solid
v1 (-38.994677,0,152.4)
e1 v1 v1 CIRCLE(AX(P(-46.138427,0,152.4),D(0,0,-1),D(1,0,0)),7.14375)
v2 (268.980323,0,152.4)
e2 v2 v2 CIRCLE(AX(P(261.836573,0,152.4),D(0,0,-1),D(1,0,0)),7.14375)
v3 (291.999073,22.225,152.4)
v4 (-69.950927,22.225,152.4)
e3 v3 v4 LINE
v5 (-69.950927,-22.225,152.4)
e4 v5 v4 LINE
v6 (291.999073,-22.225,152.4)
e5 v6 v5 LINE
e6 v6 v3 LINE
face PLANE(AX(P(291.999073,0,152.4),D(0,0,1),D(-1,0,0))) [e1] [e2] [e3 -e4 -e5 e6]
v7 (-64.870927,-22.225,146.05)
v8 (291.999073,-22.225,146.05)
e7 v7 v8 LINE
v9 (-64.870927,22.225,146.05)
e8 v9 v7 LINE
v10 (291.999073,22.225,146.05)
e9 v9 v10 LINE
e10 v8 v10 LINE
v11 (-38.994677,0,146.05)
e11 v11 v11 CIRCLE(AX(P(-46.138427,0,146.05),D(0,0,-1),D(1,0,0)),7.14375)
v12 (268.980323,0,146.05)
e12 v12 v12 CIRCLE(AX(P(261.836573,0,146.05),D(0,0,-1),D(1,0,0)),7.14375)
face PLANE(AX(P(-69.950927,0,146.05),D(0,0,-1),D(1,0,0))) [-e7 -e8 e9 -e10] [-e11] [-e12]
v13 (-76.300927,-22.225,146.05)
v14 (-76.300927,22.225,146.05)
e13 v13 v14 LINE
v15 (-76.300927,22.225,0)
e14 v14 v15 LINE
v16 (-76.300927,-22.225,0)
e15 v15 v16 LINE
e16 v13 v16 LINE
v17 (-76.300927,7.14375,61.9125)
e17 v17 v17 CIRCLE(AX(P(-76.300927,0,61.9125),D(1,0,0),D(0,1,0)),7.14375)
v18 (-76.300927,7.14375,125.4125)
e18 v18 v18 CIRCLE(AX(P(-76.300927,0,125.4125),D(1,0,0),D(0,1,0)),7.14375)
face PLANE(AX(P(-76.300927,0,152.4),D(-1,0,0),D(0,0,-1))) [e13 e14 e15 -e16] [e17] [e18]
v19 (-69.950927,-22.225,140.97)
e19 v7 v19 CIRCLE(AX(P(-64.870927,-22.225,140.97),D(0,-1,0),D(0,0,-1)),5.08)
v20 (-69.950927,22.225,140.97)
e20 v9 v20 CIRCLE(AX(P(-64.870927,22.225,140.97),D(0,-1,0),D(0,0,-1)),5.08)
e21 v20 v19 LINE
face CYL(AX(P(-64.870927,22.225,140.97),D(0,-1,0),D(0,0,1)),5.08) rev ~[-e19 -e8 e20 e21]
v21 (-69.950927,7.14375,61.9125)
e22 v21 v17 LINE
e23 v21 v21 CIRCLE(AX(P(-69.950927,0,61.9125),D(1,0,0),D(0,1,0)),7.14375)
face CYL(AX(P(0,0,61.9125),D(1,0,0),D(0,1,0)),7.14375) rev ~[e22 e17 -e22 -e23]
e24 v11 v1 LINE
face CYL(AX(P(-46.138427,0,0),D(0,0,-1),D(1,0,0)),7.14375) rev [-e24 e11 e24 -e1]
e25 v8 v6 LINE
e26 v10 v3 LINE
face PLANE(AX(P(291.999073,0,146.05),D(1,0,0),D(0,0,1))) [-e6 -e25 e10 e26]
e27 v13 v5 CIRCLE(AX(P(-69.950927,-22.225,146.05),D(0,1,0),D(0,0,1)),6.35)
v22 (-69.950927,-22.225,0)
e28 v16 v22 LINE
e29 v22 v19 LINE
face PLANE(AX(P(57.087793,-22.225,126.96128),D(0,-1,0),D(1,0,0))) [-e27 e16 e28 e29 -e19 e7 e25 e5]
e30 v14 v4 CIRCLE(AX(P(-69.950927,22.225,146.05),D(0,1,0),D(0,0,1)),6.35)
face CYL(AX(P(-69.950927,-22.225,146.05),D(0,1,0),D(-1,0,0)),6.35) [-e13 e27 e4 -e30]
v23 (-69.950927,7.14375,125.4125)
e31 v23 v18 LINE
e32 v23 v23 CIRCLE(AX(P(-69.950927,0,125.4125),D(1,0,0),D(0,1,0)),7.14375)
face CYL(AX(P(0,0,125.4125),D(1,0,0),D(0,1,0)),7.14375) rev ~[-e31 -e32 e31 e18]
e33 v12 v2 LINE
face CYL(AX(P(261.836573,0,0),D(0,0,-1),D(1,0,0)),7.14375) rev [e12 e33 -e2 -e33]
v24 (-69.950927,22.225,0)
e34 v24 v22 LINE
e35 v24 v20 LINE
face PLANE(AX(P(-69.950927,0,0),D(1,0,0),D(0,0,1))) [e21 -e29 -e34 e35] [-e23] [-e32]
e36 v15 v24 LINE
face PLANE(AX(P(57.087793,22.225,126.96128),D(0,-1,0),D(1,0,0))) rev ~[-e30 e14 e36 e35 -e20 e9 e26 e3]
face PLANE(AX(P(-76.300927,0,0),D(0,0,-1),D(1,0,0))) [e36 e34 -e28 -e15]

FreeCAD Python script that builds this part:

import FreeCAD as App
import Part
import Sketcher
from FreeCAD import Vector
Q = App.Units.Quantity


def edges_at(feature, points):
    """Names of the edges that pass closest to the given points."""
    edges = feature.Shape.Edges
    near = lambda p: min(range(len(edges)), key=lambda i: edges[i].distToShape(Part.Vertex(*p))[0])
    return sorted({f"Edge{near(p) + 1}" for p in points})


def add_polygon(sketch, points):
    """Adds a closed chain of lines whose ends are joined by coincident constraints."""
    first, n = sketch.GeometryCount, len(points)
    for a, b in zip(points, points[1:] + points[:1]):
        sketch.addGeometry(Part.LineSegment(App.Vector(*a, 0), App.Vector(*b, 0)), False)
    for i in range(n):
        sketch.addConstraint(Sketcher.Constraint("Coincident", first + i, 2, first + (i + 1) % n, 1))

doc = App.newDocument("Part")
body = doc.addObject("PartDesign::Body", "Body")

sketch1 = body.newObject("Sketcher::SketchObject", "Sketch")
sketch1.AttachmentSupport = (doc.getObject("XZ_Plane"), [""])
sketch1.MapMode = "FlatFace"
add_polygon(sketch1, [(-76.300927, 152.4), (-76.300927, 0), (-69.950927, 0), (-69.950927, 146.05), (291.999073, 146.05), (291.999073, 152.4)])
sketch1.addConstraint([
    Sketcher.Constraint("Vertical", 0),
    Sketcher.Constraint("Horizontal", 1),
    Sketcher.Constraint("Vertical", 2),
    Sketcher.Constraint("Horizontal", 3),
    Sketcher.Constraint("Vertical", 4),
    Sketcher.Constraint("Horizontal", 5),
    Sketcher.Constraint("PointOnObject", 0, 2, -1),
    Sketcher.Constraint("Equal", 1, 4),
    Sketcher.Constraint("DistanceY", 0, 2, 0, 1, Q("6 in")),
    Sketcher.Constraint("DistanceX", 5, 2, 5, 1, Q("14.5 in")),
    Sketcher.Constraint("DistanceX", 1, 1, 1, 2, Q("0.25 in")),
    Sketcher.Constraint("DistanceX", 0, 2, -1, 1, 76.300927),
])
pad1 = body.newObject("PartDesign::Pad", "Pad")
pad1.Profile = sketch1
pad1.Length = Q("1.75 in")
pad1.Midplane = True
doc.recompute()

fillet = body.newObject("PartDesign::Fillet", "Fillet")
fillet.Base = (pad1, edges_at(pad1, [(-69.951, 0, 146.05)]))
fillet.Radius = Q("0.2 in")
doc.recompute()

fillet2 = body.newObject("PartDesign::Fillet", "Fillet001")
fillet2.Base = (fillet, edges_at(fillet, [(-76.301, 0, 152.4)]))
fillet2.Radius = Q("0.25 in")

sketch2 = body.newObject("Sketcher::SketchObject", "Sketch001")
sketch2.AttachmentSupport = (doc.getObject("XY_Plane"), [""])
sketch2.MapMode = "FlatFace"
sketch2.addGeometry([
    Part.Circle(Vector(261.836573, 0, 0), Vector(0, 0, 1), 7.14375),
    Part.Circle(Vector(-46.138427, 0, 0), Vector(0, 0, 1), 7.14375),
], False)
sketch2.addConstraint([
    Sketcher.Constraint("Equal", 0, 1),
    Sketcher.Constraint("PointOnObject", 0, 3, -1),
    Sketcher.Constraint("PointOnObject", 1, 3, -1),
    Sketcher.Constraint("Diameter", 0, Q("0.5625 in")),
    Sketcher.Constraint("DistanceX", 1, 3, 0, 3, Q("12.125 in")),
    Sketcher.Constraint("DistanceX", -1, 1, 0, 3, 261.836573),
])
pocket1 = body.newObject("PartDesign::Pocket", "Pocket")
pocket1.Profile = sketch2
pocket1.Type = "ThroughAll"
pocket1.Reversed = True

sketch3 = body.newObject("Sketcher::SketchObject", "Sketch002")
sketch3.AttachmentSupport = (doc.getObject("YZ_Plane"), [""])
sketch3.MapMode = "FlatFace"
sketch3.addGeometry([
    Part.Circle(Vector(0, 125.4125, 0), Vector(0, 0, 1), 7.14375),
    Part.Circle(Vector(0, 61.9125, 0), Vector(0, 0, 1), 7.14375),
], False)
sketch3.addConstraint([
    Sketcher.Constraint("Equal", 0, 1),
    Sketcher.Constraint("PointOnObject", 0, 3, -2),
    Sketcher.Constraint("PointOnObject", 1, 3, -2),
    Sketcher.Constraint("Diameter", 0, Q("0.5625 in")),
    Sketcher.Constraint("DistanceY", 1, 3, 0, 3, Q("2.5 in")),
    Sketcher.Constraint("DistanceY", -1, 1, 0, 3, Q("4.9375 in")),
])
pocket2 = body.newObject("PartDesign::Pocket", "Pocket001")
pocket2.Profile = sketch3
pocket2.Type = "ThroughAll"

doc.recompute()
